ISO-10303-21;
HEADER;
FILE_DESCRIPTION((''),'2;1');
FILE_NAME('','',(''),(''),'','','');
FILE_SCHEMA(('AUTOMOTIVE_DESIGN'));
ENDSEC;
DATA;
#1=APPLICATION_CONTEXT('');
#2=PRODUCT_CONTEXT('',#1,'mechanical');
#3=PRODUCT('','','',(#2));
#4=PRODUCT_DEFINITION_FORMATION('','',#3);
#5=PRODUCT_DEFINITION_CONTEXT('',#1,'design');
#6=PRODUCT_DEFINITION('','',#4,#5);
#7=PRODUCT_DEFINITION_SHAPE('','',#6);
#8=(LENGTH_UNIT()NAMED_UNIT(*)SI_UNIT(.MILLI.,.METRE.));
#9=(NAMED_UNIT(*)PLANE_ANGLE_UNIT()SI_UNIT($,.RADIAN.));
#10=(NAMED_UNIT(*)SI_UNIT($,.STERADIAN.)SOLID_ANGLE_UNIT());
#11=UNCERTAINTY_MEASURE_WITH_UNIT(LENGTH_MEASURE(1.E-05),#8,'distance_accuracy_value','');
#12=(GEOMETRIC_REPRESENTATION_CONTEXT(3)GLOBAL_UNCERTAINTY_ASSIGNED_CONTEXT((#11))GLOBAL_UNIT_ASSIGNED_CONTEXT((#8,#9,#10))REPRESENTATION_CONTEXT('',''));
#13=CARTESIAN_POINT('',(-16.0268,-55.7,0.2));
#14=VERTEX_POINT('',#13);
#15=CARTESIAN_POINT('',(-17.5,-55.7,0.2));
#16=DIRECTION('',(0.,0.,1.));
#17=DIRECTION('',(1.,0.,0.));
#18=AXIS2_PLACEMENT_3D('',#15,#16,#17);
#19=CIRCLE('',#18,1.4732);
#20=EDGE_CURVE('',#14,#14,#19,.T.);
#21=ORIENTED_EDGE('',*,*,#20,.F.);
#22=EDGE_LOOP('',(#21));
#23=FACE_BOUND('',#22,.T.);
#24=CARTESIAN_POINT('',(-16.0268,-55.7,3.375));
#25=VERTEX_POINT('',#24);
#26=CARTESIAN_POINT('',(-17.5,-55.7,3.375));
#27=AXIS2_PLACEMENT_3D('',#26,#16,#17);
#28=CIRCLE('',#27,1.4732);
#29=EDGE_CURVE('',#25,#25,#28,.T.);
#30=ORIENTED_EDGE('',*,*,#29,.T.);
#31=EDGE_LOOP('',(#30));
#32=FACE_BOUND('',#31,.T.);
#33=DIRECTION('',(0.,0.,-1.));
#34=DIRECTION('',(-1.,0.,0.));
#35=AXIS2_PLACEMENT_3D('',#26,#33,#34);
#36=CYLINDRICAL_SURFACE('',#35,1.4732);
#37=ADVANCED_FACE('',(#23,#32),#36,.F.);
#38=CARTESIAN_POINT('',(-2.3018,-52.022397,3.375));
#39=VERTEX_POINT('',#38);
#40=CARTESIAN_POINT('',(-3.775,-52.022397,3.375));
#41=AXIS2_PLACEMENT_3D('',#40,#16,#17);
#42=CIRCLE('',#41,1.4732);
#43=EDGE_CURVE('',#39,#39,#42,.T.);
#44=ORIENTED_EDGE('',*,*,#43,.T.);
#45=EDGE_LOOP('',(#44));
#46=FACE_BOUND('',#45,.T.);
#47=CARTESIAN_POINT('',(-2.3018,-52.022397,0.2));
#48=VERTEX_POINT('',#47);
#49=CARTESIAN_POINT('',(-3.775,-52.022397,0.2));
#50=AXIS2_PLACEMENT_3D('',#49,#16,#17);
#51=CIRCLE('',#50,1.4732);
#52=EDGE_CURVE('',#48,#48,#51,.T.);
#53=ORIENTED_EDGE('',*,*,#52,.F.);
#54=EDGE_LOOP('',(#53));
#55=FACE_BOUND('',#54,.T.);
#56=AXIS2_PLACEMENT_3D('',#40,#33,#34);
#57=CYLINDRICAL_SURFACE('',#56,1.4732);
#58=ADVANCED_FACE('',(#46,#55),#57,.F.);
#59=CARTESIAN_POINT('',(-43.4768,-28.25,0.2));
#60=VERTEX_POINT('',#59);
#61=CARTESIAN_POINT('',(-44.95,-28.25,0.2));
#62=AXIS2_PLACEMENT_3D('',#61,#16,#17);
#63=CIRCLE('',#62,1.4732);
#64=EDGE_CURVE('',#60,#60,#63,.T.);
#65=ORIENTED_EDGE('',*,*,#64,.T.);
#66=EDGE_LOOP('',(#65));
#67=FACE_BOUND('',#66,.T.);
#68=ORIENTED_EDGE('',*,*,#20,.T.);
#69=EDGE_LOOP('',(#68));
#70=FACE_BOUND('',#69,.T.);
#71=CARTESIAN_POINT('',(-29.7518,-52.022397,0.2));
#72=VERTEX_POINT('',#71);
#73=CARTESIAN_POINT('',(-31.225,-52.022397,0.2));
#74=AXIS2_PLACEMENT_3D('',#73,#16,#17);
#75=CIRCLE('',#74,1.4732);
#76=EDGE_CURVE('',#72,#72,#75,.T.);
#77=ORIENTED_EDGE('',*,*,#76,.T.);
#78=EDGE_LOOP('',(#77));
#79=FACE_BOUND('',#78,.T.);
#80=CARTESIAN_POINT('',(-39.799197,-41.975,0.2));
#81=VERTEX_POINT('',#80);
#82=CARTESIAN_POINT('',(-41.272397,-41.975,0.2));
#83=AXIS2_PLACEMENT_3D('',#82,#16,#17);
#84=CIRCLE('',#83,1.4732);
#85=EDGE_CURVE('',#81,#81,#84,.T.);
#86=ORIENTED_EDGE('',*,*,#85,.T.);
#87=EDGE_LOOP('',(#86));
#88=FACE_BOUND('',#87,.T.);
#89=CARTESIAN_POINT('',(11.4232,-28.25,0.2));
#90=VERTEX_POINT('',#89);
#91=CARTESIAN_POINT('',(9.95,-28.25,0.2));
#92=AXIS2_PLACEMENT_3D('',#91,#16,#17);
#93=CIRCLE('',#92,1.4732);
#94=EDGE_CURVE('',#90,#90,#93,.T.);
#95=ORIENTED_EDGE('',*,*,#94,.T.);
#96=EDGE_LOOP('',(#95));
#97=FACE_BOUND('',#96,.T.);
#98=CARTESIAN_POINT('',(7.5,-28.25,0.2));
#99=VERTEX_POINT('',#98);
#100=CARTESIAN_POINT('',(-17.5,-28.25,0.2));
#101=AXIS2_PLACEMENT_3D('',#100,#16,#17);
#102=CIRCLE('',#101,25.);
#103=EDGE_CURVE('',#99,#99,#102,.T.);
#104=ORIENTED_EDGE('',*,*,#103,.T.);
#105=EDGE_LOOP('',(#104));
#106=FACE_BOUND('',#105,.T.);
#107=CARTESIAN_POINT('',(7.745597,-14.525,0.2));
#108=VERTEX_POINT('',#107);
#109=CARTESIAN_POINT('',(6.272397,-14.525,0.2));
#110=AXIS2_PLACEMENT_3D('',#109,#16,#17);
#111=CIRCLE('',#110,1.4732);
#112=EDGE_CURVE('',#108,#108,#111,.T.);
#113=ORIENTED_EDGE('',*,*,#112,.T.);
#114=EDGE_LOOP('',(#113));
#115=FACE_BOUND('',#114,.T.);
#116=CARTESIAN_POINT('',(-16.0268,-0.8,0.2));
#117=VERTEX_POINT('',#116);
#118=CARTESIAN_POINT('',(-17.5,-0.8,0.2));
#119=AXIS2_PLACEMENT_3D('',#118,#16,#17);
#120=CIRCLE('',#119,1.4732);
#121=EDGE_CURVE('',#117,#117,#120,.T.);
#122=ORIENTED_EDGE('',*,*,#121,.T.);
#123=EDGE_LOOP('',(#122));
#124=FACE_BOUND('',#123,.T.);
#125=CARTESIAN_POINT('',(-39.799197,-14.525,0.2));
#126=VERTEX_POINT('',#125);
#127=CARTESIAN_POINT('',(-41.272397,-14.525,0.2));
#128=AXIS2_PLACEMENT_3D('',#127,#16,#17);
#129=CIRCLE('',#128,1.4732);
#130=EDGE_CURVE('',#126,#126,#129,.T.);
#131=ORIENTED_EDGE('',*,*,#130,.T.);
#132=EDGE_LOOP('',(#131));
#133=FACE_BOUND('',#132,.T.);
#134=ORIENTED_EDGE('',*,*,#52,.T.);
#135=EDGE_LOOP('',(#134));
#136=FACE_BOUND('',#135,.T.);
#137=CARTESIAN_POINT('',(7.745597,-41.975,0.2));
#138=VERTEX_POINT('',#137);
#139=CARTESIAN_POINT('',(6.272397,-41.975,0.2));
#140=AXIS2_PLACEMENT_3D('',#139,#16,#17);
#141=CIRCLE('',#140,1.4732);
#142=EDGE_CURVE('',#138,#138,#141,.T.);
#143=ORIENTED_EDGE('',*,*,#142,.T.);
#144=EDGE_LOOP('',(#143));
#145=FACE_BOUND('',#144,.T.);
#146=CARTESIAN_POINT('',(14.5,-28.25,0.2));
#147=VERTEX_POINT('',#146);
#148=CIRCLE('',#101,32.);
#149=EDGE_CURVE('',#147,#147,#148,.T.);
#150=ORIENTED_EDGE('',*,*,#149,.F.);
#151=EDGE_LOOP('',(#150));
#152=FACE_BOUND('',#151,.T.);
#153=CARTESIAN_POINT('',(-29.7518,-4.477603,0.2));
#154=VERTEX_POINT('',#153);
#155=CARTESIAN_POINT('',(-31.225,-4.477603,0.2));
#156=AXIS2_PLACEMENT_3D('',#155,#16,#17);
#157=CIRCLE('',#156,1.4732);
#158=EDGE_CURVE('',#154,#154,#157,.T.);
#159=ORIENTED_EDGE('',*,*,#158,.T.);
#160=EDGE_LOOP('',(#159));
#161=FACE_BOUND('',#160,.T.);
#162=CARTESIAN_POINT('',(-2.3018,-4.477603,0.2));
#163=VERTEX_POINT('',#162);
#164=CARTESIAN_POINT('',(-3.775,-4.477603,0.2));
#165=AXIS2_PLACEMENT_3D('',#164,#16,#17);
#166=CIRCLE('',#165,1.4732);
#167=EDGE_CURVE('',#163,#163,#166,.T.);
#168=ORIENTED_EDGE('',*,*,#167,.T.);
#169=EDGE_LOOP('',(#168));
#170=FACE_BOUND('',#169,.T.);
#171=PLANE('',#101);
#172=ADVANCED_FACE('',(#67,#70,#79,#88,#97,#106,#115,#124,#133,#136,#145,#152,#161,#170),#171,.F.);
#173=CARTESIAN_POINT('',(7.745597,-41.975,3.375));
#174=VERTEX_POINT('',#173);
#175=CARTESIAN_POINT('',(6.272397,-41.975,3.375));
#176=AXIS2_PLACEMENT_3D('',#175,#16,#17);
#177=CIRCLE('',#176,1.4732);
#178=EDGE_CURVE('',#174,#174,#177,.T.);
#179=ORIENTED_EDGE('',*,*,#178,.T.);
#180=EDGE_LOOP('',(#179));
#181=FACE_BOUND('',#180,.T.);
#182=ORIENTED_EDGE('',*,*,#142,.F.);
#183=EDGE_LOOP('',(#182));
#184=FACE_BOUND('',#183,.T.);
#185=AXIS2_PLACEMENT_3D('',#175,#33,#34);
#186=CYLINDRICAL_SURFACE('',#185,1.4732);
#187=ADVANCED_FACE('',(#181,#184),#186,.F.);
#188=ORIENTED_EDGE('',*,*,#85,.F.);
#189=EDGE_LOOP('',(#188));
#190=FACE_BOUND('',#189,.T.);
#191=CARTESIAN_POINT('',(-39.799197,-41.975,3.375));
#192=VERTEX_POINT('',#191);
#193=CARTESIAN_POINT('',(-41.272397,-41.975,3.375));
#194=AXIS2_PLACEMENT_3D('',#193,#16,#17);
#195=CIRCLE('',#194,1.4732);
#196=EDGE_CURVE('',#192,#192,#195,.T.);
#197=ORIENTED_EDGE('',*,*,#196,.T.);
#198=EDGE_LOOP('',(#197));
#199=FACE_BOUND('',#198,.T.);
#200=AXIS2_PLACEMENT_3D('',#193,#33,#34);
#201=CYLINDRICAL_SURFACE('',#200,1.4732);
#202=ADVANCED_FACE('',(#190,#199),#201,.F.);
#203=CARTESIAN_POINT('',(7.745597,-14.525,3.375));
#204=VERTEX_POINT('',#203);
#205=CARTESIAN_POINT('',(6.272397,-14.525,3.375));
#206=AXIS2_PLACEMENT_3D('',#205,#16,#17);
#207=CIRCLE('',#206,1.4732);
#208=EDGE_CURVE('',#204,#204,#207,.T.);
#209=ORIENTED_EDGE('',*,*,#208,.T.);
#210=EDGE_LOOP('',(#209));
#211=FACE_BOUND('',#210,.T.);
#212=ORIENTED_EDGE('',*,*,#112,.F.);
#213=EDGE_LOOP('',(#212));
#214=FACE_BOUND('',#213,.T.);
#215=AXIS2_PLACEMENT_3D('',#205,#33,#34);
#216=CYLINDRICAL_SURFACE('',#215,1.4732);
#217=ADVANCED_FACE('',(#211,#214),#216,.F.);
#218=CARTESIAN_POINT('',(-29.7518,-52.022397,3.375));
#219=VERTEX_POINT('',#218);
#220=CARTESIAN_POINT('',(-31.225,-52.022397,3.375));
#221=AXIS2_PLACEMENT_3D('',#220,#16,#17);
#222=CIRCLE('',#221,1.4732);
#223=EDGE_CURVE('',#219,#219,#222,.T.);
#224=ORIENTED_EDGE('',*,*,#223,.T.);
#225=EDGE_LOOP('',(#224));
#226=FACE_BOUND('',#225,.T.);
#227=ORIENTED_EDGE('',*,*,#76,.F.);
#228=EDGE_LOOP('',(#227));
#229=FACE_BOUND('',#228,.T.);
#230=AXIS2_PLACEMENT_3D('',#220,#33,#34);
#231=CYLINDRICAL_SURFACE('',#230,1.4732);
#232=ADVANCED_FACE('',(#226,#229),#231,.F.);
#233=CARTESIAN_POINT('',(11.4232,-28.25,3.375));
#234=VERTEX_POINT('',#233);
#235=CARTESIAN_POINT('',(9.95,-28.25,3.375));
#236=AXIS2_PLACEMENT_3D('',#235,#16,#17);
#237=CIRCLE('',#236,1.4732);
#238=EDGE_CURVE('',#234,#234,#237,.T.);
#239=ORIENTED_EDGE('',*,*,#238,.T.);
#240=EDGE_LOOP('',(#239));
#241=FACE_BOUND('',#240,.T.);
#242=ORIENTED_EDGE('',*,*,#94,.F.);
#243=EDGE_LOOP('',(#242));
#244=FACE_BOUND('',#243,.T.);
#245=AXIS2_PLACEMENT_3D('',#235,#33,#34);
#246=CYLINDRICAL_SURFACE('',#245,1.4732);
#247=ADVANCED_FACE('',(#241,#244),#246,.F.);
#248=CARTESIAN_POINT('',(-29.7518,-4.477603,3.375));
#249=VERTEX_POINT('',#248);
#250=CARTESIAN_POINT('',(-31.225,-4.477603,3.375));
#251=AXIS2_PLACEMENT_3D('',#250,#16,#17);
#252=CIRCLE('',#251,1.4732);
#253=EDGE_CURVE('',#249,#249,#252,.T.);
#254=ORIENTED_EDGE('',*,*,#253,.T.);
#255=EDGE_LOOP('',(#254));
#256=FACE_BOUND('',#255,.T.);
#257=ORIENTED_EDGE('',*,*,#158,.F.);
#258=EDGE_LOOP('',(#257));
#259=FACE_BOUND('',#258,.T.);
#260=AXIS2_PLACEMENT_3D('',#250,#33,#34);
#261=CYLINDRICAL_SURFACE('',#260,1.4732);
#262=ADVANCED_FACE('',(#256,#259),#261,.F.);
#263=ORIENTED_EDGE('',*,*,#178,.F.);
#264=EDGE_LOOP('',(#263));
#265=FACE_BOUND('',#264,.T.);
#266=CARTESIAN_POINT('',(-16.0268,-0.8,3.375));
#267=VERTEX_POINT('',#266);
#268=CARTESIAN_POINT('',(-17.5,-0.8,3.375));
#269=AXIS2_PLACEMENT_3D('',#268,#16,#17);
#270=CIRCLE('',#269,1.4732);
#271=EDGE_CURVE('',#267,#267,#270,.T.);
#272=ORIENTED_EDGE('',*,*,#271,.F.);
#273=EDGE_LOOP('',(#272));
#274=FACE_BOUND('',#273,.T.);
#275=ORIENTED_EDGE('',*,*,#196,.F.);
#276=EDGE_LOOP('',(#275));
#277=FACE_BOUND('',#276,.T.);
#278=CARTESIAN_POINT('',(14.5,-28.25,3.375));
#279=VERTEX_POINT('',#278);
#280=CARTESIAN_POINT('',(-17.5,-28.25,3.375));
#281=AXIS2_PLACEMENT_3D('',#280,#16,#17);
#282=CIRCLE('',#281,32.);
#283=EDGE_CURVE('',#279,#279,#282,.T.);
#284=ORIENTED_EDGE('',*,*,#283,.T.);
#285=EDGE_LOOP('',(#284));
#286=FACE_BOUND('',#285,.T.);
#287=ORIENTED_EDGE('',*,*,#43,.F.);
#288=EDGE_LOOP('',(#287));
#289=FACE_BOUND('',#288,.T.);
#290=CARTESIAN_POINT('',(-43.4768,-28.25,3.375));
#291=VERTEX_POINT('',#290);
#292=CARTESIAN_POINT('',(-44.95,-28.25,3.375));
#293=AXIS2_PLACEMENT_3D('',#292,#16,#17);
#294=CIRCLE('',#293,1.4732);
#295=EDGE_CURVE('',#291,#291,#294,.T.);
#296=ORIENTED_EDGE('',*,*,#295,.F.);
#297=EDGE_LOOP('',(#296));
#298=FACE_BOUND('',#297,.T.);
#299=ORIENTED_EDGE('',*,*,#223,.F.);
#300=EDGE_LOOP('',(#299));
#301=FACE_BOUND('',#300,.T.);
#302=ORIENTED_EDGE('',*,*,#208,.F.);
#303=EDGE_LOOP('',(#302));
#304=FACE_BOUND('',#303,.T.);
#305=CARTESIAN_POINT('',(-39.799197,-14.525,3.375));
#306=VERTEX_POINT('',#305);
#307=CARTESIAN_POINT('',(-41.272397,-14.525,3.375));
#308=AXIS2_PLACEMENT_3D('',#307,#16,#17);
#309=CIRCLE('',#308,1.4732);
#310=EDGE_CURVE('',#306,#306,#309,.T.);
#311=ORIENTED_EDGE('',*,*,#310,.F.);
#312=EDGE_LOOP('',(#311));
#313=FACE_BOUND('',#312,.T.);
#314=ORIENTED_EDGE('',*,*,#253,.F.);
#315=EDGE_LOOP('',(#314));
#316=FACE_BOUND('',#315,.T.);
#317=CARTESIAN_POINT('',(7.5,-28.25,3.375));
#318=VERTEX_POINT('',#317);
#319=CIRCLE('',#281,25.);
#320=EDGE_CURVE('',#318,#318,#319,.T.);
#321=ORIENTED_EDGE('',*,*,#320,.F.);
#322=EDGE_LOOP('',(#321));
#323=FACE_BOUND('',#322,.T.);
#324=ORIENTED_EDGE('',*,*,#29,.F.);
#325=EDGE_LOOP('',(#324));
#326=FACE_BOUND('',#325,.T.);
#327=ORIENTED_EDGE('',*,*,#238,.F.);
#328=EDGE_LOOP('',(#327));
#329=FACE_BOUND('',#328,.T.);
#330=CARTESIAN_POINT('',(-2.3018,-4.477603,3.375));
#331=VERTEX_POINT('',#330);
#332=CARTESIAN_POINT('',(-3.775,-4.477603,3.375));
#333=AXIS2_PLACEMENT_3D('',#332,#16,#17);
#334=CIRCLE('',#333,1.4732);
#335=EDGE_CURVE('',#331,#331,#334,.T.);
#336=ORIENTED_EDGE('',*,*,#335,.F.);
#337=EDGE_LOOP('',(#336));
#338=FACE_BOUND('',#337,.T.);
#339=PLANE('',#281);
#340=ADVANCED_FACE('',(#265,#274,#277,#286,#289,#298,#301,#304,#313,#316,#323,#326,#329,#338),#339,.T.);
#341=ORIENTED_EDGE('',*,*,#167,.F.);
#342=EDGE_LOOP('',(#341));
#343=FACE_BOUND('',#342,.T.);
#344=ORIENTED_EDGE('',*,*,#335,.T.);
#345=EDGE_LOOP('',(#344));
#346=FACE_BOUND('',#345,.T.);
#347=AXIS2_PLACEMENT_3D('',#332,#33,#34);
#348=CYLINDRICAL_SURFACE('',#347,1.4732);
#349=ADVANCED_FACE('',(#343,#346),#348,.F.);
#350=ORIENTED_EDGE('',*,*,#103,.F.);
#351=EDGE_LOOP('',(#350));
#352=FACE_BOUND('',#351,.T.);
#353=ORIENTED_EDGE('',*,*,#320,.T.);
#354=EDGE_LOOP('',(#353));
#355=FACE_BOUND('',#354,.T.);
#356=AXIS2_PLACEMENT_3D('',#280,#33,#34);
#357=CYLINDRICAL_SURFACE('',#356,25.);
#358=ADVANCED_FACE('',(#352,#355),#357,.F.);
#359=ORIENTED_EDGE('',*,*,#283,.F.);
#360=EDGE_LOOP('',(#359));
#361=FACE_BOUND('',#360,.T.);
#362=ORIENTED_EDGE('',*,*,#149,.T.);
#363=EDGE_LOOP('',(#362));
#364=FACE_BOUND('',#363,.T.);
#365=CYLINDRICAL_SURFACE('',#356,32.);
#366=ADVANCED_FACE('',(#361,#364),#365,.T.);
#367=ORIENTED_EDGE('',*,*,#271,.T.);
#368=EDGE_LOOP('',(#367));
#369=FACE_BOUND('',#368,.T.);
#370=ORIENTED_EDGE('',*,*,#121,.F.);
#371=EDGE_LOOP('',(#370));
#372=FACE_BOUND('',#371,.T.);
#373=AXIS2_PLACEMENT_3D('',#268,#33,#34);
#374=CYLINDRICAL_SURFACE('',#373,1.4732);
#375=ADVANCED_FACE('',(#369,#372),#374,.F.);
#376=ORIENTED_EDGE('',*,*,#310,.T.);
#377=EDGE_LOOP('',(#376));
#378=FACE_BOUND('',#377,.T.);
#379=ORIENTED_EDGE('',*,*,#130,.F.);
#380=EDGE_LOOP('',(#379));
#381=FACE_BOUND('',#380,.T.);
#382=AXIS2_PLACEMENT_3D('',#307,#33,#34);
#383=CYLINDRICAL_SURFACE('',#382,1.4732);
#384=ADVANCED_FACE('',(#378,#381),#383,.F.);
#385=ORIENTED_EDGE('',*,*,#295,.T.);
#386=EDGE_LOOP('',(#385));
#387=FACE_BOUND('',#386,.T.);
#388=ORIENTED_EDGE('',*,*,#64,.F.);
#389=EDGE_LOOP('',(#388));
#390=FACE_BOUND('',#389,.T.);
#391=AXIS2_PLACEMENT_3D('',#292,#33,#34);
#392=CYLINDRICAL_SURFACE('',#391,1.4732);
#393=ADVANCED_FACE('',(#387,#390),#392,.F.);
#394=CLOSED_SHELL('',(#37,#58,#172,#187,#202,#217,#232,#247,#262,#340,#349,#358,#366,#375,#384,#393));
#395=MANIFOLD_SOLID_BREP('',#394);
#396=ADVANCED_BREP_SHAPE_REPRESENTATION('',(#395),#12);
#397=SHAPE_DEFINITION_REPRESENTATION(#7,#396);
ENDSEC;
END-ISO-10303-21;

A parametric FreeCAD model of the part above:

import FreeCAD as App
import Part
import Sketcher

doc = App.newDocument("Part")
params = doc.addObject("Spreadsheet::Sheet", "Params")
for row, (alias, value) in enumerate([
    ("sketch1_diameter", "64 mm"),
    ("sketch1_diameter2", "50 mm"),
    ("pad1_length", "3.175 mm"),
], start=1):
    params.set(f"A{row}", alias)
    params.set(f"B{row}", "=" + value)
    params.setAlias(f"B{row}", alias)

body = doc.addObject("PartDesign::Body", "Body")

# Sketch on XY plane
sketch1 = body.newObject("Sketcher::SketchObject", "Sketch")
sketch1.AttachmentSupport = (doc.getObject("XY_Plane"), [""])
sketch1.MapMode = "FlatFace"
sketch1.AttachmentOffset = App.Placement(App.Vector(0, 0, 0.2), App.Rotation())
sketch1.addGeometry(Part.Circle(App.Vector(-17.5, -28.2, 0), App.Vector(0, 0, 1), 32), False)
sketch1.addGeometry(Part.Circle(App.Vector(-31.2, -52, 0), App.Vector(0, 0, 1), 1.5), False)
sketch1.addGeometry(Part.Circle(App.Vector(-41.3, -42, 0), App.Vector(0, 0, 1), 1.5), False)
sketch1.addGeometry(Part.Circle(App.Vector(-17.5, -55.7, 0), App.Vector(0, 0, 1), 1.5), False)
sketch1.addGeometry(Part.Circle(App.Vector(-3.8, -52, 0), App.Vector(0, 0, 1), 1.5), False)
sketch1.addGeometry(Part.Circle(App.Vector(6.3, -42, 0), App.Vector(0, 0, 1), 1.5), False)
sketch1.addGeometry(Part.Circle(App.Vector(-45, -28.2, 0), App.Vector(0, 0, 1), 1.5), False)
sketch1.addGeometry(Part.Circle(App.Vector(-41.3, -14.5, 0), App.Vector(0, 0, 1), 1.5), False)
sketch1.addGeometry(Part.Circle(App.Vector(-31.2, -4.5, 0), App.Vector(0, 0, 1), 1.5), False)
sketch1.addGeometry(Part.Circle(App.Vector(-17.5, -28.2, 0), App.Vector(0, 0, 1), 25), False)
sketch1.addGeometry(Part.Circle(App.Vector(9.9, -28.2, 0), App.Vector(0, 0, 1), 1.5), False)
sketch1.addGeometry(Part.Circle(App.Vector(6.3, -14.5, 0), App.Vector(0, 0, 1), 1.5), False)
sketch1.addGeometry(Part.Circle(App.Vector(-17.5, -0.8, 0), App.Vector(0, 0, 1), 1.5), False)
sketch1.addGeometry(Part.Circle(App.Vector(-3.8, -4.5, 0), App.Vector(0, 0, 1), 1.5), False)
sketch1.addConstraint(Sketcher.Constraint("Coincident", 9, 3, 0, 3))
sketch1.addConstraint(Sketcher.Constraint("Equal", 1, 2))
sketch1.addConstraint(Sketcher.Constraint("Equal", 2, 3))
sketch1.addConstraint(Sketcher.Constraint("Equal", 3, 4))
sketch1.addConstraint(Sketcher.Constraint("Equal", 4, 5))
sketch1.addConstraint(Sketcher.Constraint("Equal", 5, 6))
sketch1.addConstraint(Sketcher.Constraint("Equal", 6, 7))
sketch1.addConstraint(Sketcher.Constraint("Equal", 7, 8))
sketch1.addConstraint(Sketcher.Constraint("Equal", 8, 10))
sketch1.addConstraint(Sketcher.Constraint("Equal", 10, 11))
sketch1.addConstraint(Sketcher.Constraint("Equal", 11, 12))
sketch1.addConstraint(Sketcher.Constraint("Equal", 12, 13))
sketch1.addConstraint(Sketcher.Constraint("Horizontal", 1, 3, 4, 3))
sketch1.addConstraint(Sketcher.Constraint("Horizontal", 2, 3, 5, 3))
sketch1.addConstraint(Sketcher.Constraint("Horizontal", 0, 3, 6, 3))
sketch1.addConstraint(Sketcher.Constraint("Horizontal", 9, 3, 10, 3))
sketch1.addConstraint(Sketcher.Constraint("Horizontal", 7, 3, 11, 3))
sketch1.addConstraint(Sketcher.Constraint("Horizontal", 8, 3, 13, 3))
sketch1.addConstraint(Sketcher.Constraint("Vertical", 0, 3, 3, 3))
sketch1.addConstraint(Sketcher.Constraint("Vertical", 2, 3, 7, 3))
sketch1.addConstraint(Sketcher.Constraint("Vertical", 1, 3, 8, 3))
sketch1.addConstraint(Sketcher.Constraint("Vertical", 5, 3, 11, 3))
sketch1.addConstraint(Sketcher.Constraint("Vertical", 9, 3, 12, 3))
sketch1.addConstraint(Sketcher.Constraint("Vertical", 4, 3, 13, 3))
sketch1.addConstraint(Sketcher.Constraint("Diameter", 0, 64.0))
sketch1.addConstraint(Sketcher.Constraint("Diameter", 9, 50.0))
sketch1.addConstraint(Sketcher.Constraint("Diameter", 1, 2.9464))
sketch1.addConstraint(Sketcher.Constraint("DistanceX", 0, 3, -1, 1, 17.5))
sketch1.addConstraint(Sketcher.Constraint("DistanceY", 3, 3, -1, 1, 55.7))
sketch1.addConstraint(Sketcher.Constraint("DistanceY", 12, 3, -1, 1, 0.8))
sketch1.addConstraint(Sketcher.Constraint("DistanceY", 0, 3, -1, 1, 28.25))
sketch1.addConstraint(Sketcher.Constraint("DistanceX", 6, 3, -1, 1, 44.95))
sketch1.addConstraint(Sketcher.Constraint("DistanceX", -1, 1, 10, 3, 9.95))
sketch1.addConstraint(Sketcher.Constraint("DistanceX", 1, 3, 4, 3, 27.45))
sketch1.addConstraint(Sketcher.Constraint("DistanceY", 2, 3, 7, 3, 27.45))
sketch1.addConstraint(Sketcher.Constraint("DistanceX", 1, 3, -1, 1, 31.225))
sketch1.addConstraint(Sketcher.Constraint("DistanceY", 2, 3, -1, 1, 41.975))
sketch1.addConstraint(Sketcher.Constraint("DistanceY", 1, 3, -1, 1, 52.022397))
sketch1.addConstraint(Sketcher.Constraint("DistanceX", 2, 3, -1, 1, 41.272397))
sketch1.addConstraint(Sketcher.Constraint("DistanceX", -1, 1, 5, 3, 6.272397))
sketch1.addConstraint(Sketcher.Constraint("DistanceY", 8, 3, -1, 1, 4.477603))
sketch1.setExpression("Constraints[24]", "Params.sketch1_diameter")
sketch1.setExpression("Constraints[25]", "Params.sketch1_diameter2")
pad1 = body.newObject("PartDesign::Pad", "Pad")
pad1.Profile = sketch1
pad1.setExpression("Length", "Params.pad1_length")

doc.recompute()
